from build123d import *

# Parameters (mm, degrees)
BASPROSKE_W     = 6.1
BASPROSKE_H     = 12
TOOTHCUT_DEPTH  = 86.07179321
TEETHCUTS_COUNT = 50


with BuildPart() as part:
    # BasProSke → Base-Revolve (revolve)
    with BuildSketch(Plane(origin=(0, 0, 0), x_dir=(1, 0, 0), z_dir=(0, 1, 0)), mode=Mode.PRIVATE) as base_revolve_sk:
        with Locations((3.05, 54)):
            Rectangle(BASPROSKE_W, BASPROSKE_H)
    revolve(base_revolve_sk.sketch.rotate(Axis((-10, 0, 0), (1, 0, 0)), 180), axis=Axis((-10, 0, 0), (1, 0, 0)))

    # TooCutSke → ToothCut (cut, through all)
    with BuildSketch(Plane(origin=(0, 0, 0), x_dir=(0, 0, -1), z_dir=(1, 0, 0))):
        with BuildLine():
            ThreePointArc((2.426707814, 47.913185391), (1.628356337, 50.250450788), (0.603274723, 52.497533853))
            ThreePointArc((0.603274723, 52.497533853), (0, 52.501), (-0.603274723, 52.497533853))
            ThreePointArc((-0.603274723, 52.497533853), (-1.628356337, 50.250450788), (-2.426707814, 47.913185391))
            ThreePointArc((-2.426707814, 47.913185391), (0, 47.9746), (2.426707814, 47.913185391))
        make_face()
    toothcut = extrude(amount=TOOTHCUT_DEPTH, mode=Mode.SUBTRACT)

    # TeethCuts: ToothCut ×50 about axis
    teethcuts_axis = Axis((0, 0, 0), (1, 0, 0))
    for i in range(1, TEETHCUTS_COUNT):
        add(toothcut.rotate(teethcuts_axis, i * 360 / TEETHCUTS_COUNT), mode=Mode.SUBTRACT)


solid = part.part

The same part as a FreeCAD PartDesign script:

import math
import FreeCAD as App
import Part
import Sketcher
Q = App.Units.Quantity

doc = App.newDocument("Part")
params = doc.addObject("Spreadsheet::Sheet", "Params")
for row, (alias, value) in enumerate([
    ("sketch1_height", "12 mm"),
    ("sketch1_width", "6.1 mm"),
    ("revolution_angle", "360 deg"),
    ("sketch2_radius", "25 mm"),
], start=1):
    params.set(f"A{row}", alias)
    params.set(f"B{row}", "=" + value)
    params.setAlias(f"B{row}", alias)

body = doc.addObject("PartDesign::Body", "Body")

# Sketch on XZ plane
sketch1 = body.newObject("Sketcher::SketchObject", "Sketch")
sketch1.AttachmentSupport = (doc.getObject("XZ_Plane"), [""])
sketch1.MapMode = "FlatFace"
sketch1.addGeometry([
    Part.LineSegment(App.Vector(0, -60, 0), App.Vector(0, -48, 0)),
    Part.LineSegment(App.Vector(0, -48, 0), App.Vector(6, -48, 0)),
    Part.LineSegment(App.Vector(6, -48, 0), App.Vector(6, -60, 0)),
    Part.LineSegment(App.Vector(6, -60, 0), App.Vector(0, -60, 0)),
], False)
sketch1.addConstraint([
    Sketcher.Constraint("Coincident", 0, 2, 1, 1),
    Sketcher.Constraint("Coincident", 1, 2, 2, 1),
    Sketcher.Constraint("Coincident", 2, 2, 3, 1),
    Sketcher.Constraint("Coincident", 3, 2, 0, 1),
    Sketcher.Constraint("Vertical", 0),
    Sketcher.Constraint("Horizontal", 1),
    Sketcher.Constraint("Vertical", 2),
    Sketcher.Constraint("Horizontal", 3),
    Sketcher.Constraint("PointOnObject", 0, 2, -2),
    Sketcher.Constraint("DistanceY", 0, 1, 0, 2, Q("12 mm")),
    Sketcher.Constraint("DistanceX", 1, 1, 1, 2, Q("6.1 mm")),
    Sketcher.Constraint("DistanceY", 0, 2, -1, 1, Q("48 mm")),
])
sketch1.setExpression("Constraints[9]", "Params.sketch1_height")
sketch1.setExpression("Constraints[10]", "Params.sketch1_width")
revolution = body.newObject("PartDesign::Revolution", "Revolution")
revolution.Profile = sketch1
revolution.ReferenceAxis = (sketch1, ["H_Axis"])
revolution.setExpression("Angle", "Params.revolution_angle")

# Sketch on YZ plane
sketch2 = body.newObject("Sketcher::SketchObject", "Sketch001")
sketch2.AttachmentSupport = (doc.getObject("YZ_Plane"), [""])
sketch2.MapMode = "FlatFace"
sketch2.addGeometry([
    Part.ArcOfCircle(Part.Circle(App.Vector(41, 21.6, 0), App.Vector(0, 0, 1), 25), math.radians(-73.97), math.radians(-62.65)),
    Part.ArcOfCircle(Part.Circle(App.Vector(0, 0, 0), App.Vector(0, 0, 1), 52.5), math.radians(-0.66), math.radians(0.66)),
    Part.ArcOfCircle(Part.Circle(App.Vector(41, -21.6, 0), App.Vector(0, 0, 1), 25), math.radians(62.65), math.radians(73.97)),
    Part.ArcOfCircle(Part.Circle(App.Vector(0, 0, 0), App.Vector(0, 0, 1), 48), math.radians(-2.9), math.radians(2.9)),
], False)
sketch2.addConstraint([
    Sketcher.Constraint("Coincident", 0, 2, 1, 1),
    Sketcher.Constraint("Coincident", 1, 2, 2, 1),
    Sketcher.Constraint("Coincident", 2, 2, 3, 2),
    Sketcher.Constraint("Coincident", 3, 1, 0, 1),
    Sketcher.Constraint("Coincident", 1, 3, -1, 1),
    Sketcher.Constraint("Coincident", 3, 3, -1, 1),
    Sketcher.Constraint("Equal", 0, 2),
    Sketcher.Constraint("Symmetric", 0, 3, 2, 3, -1),
    Sketcher.Constraint("Radius", 0, Q("25 mm")),
    Sketcher.Constraint("Radius", 3, Q("47.9746 mm")),
    Sketcher.Constraint("Radius", 1, Q("52.501006 mm")),
    Sketcher.Constraint("DistanceY", 0, 2, 0, 3, Q("22.2048 mm")),
    Sketcher.Constraint("DistanceY", 2, 3, 0, 3, Q("43.203051 mm")),
])
sketch2.setExpression("Constraints[8]", "Params.sketch2_radius")
pocket1 = body.newObject("PartDesign::Pocket", "Pocket")
pocket1.Profile = sketch2
pocket1.Type = "ThroughAll"
pocket1.Reversed = True
doc.recompute()

polarpattern = body.newObject("PartDesign::PolarPattern", "PolarPattern")
polarpattern.Originals = [pocket1]
polarpattern.Axis = (doc.getObject("X_Axis"), [""])
polarpattern.Angle = 360
polarpattern.Occurrences = 50
body.Tip = polarpattern

doc.recompute()
